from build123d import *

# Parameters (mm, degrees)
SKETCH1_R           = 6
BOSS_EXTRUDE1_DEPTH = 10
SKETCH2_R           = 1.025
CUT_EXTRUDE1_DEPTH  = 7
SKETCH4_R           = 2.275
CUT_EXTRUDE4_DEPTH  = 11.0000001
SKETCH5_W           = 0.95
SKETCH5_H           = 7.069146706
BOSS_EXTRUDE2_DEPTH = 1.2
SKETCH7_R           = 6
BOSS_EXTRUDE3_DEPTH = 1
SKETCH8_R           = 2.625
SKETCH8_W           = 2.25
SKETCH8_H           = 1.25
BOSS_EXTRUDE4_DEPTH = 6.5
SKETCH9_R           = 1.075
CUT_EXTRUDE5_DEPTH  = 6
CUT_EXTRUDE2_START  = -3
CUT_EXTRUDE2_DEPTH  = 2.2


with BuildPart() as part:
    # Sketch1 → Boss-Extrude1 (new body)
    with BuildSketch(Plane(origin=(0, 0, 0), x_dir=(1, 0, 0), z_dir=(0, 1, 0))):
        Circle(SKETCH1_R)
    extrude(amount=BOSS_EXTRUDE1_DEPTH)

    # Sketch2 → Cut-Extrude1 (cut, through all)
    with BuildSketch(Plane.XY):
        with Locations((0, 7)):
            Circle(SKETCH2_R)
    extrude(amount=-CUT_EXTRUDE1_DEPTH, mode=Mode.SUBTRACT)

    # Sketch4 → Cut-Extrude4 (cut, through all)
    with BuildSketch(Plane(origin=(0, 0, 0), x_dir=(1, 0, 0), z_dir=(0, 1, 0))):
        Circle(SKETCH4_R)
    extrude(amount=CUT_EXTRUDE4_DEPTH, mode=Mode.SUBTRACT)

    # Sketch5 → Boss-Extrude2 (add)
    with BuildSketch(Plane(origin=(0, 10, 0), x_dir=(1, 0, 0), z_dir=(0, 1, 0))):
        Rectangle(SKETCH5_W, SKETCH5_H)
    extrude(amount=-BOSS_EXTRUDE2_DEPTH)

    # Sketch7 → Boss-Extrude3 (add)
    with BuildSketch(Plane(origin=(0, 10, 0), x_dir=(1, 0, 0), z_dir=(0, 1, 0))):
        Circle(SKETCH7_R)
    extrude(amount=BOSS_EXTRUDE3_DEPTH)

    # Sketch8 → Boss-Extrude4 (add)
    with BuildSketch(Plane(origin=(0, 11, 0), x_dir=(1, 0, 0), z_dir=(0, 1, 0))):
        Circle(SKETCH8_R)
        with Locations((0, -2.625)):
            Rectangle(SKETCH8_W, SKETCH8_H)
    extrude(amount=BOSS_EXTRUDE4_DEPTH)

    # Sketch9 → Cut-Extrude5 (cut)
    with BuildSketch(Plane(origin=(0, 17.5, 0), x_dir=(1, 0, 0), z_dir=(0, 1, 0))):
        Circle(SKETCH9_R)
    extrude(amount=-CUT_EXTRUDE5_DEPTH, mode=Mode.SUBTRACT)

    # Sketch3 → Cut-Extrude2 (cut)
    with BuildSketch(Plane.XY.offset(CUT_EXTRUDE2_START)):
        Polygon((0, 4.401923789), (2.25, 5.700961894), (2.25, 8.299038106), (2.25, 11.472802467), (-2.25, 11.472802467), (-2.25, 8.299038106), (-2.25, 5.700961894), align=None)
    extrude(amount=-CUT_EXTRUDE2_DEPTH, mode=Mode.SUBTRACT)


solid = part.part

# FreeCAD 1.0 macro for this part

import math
import FreeCAD as App
import Part
import Sketcher

V = App.Vector
Q = App.Units.Quantity


def add_polygon(sketch, points):
    """Adds a closed chain of lines whose ends are joined by coincident constraints."""
    first, n = sketch.GeometryCount, len(points)
    for a, b in zip(points, points[1:] + points[:1]):
        sketch.addGeometry(Part.LineSegment(App.Vector(*a, 0), App.Vector(*b, 0)), False)
    for i in range(n):
        sketch.addConstraint(Sketcher.Constraint("Coincident", first + i, 2, first + (i + 1) % n, 1))

doc = App.newDocument("Part")
params = doc.addObject("Spreadsheet::Sheet", "Params")
for row, (alias, value) in enumerate([
    ("sketch1_diameter", "12 mm"),
    ("pad1_length", "10 mm"),
    ("sketch2_diameter", "2.05 mm"),
    ("sketch3_diameter", "4.55 mm"),
    ("sketch4_width", "0.95 mm"),
    ("pad2_length", "1.2 mm"),
    ("sketch5_diameter", "12 mm"),
    ("pad3_length", "1 mm"),
    ("sketch6_width", "2.25 mm"),
    ("pad4_length", "6.5 mm"),
    ("sketch7_diameter", "2.15 mm"),
    ("pocket3_length", "6 mm"),
    ("sketch8_width", "4.5 mm"),
    ("pocket4_length", "2.2 mm"),
], start=1):
    params.set(f"A{row}", alias)
    params.set(f"B{row}", "=" + value)
    params.setAlias(f"B{row}", alias)

body = doc.addObject("PartDesign::Body", "Body")

# Sketch on XZ plane
sketch1 = doc.addObject("Sketcher::SketchObject", "Sketch")
body.addObject(sketch1)
sketch1.AttachmentSupport = (doc.XZ_Plane, [""])
sketch1.MapMode = "FlatFace"
sketch1.addGeometry(Part.Circle(V(0, 0, 0), V(0, 0, 1), 6), False)
sketch1.addConstraint([
    Sketcher.Constraint("Coincident", 0, 3, -1, 1),
    Sketcher.Constraint("Diameter", 0, 12.0),
])
sketch1.setExpression("Constraints[1]", "Params.sketch1_diameter")
pad1 = doc.addObject("PartDesign::Pad", "Pad")
body.addObject(pad1)
pad1.Profile = sketch1
pad1.setExpression("Length", "Params.pad1_length")
pad1.Reversed = True

# Sketch on XY plane
sketch2 = doc.addObject("Sketcher::SketchObject", "Sketch001")
body.addObject(sketch2)
sketch2.AttachmentSupport = (doc.XY_Plane, [""])
sketch2.MapMode = "FlatFace"
sketch2.addGeometry(Part.Circle(V(0, 7, 0), V(0, 0, 1), 1), False)
sketch2.addConstraint([
    Sketcher.Constraint("PointOnObject", 0, 3, -2),
    Sketcher.Constraint("Diameter", 0, 2.05),
    Sketcher.Constraint("DistanceY", -1, 1, 0, 3, 7.0),
])
sketch2.setExpression("Constraints[1]", "Params.sketch2_diameter")
pocket1 = doc.addObject("PartDesign::Pocket", "Pocket")
body.addObject(pocket1)
pocket1.Profile = sketch2
pocket1.Type = "ThroughAll"

# Sketch on XZ plane
sketch3 = doc.addObject("Sketcher::SketchObject", "Sketch002")
body.addObject(sketch3)
sketch3.AttachmentSupport = (doc.XZ_Plane, [""])
sketch3.MapMode = "FlatFace"
sketch3.addGeometry(Part.Circle(V(0, 0, 0), V(0, 0, 1), 2.3), False)
sketch3.addConstraint([
    Sketcher.Constraint("Coincident", 0, 3, -1, 1),
    Sketcher.Constraint("Diameter", 0, 4.55),
])
sketch3.setExpression("Constraints[1]", "Params.sketch3_diameter")
pocket2 = doc.addObject("PartDesign::Pocket", "Pocket001")
body.addObject(pocket2)
pocket2.Profile = sketch3
pocket2.Type = "ThroughAll"

# Sketch on XZ plane
sketch4 = doc.addObject("Sketcher::SketchObject", "Sketch003")
body.addObject(sketch4)
sketch4.AttachmentSupport = (doc.XZ_Plane, [""])
sketch4.MapMode = "FlatFace"
sketch4.AttachmentOffset = App.Placement(V(0, 0, -10), App.Rotation())
add_polygon(sketch4, [(-0.5, -3.5), (-0.5, 3.5), (0.5, 3.5), (0.5, -3.5)])  # lines 0-3
sketch4.addConstraint([
    Sketcher.Constraint("Vertical", 0),
    Sketcher.Constraint("Horizontal", 1),
    Sketcher.Constraint("Vertical", 2),
    Sketcher.Constraint("Horizontal", 3),
    Sketcher.Constraint("Symmetric", 0, 2, 2, 2, -1, 1),
    Sketcher.Constraint("DistanceX", 1, 1, 1, 2, 0.95),
    Sketcher.Constraint("DistanceY", 0, 1, 0, 2, 7.069147),
])
sketch4.setExpression("Constraints[9]", "Params.sketch4_width")
pad2 = doc.addObject("PartDesign::Pad", "Pad001")
body.addObject(pad2)
pad2.Profile = sketch4
pad2.setExpression("Length", "Params.pad2_length")

# Sketch on XZ plane
sketch5 = doc.addObject("Sketcher::SketchObject", "Sketch004")
body.addObject(sketch5)
sketch5.AttachmentSupport = (doc.XZ_Plane, [""])
sketch5.MapMode = "FlatFace"
sketch5.AttachmentOffset = App.Placement(V(0, 0, -10), App.Rotation())
sketch5.addGeometry(Part.Circle(V(0, 0, 0), V(0, 0, 1), 6), False)
sketch5.addConstraint([
    Sketcher.Constraint("Coincident", 0, 3, -1, 1),
    Sketcher.Constraint("Diameter", 0, 12.0),
])
sketch5.setExpression("Constraints[1]", "Params.sketch5_diameter")
pad3 = doc.addObject("PartDesign::Pad", "Pad002")
body.addObject(pad3)
pad3.Profile = sketch5
pad3.setExpression("Length", "Params.pad3_length")
pad3.Reversed = True

# Sketch on XZ plane
sketch6 = doc.addObject("Sketcher::SketchObject", "Sketch005")
body.addObject(sketch6)
sketch6.AttachmentSupport = (doc.XZ_Plane, [""])
sketch6.MapMode = "FlatFace"
sketch6.AttachmentOffset = App.Placement(V(0, 0, -11), App.Rotation())
sketch6.addGeometry([
    Part.ArcOfCircle(Part.Circle(V(0, 0, 0), V(0, 0, 1), 2.6), math.radians(115), math.radians(425)),
    Part.LineSegment(V(-1.1, 2.4, 0), V(-1.1, 3.2, 0)),
    Part.LineSegment(V(-1.1, 3.2, 0), V(1.1, 3.2, 0)),
    Part.LineSegment(V(1.1, 3.2, 0), V(1.1, 2.4, 0)),
], False)
sketch6.addConstraint([
    Sketcher.Constraint("Coincident", 0, 1, 1, 1),
    Sketcher.Constraint("Coincident", 1, 2, 2, 1),
    Sketcher.Constraint("Coincident", 2, 2, 3, 1),
    Sketcher.Constraint("Coincident", 3, 2, 0, 2),
    Sketcher.Constraint("Vertical", 1),
    Sketcher.Constraint("Horizontal", 2),
    Sketcher.Constraint("Vertical", 3),
    Sketcher.Constraint("Coincident", 0, 3, -1, 1),
    Sketcher.Constraint("Horizontal", 0, 1, 3, 2),
    Sketcher.Constraint("Radius", 0, 2.625),
    Sketcher.Constraint("DistanceX", 2, 1, 2, 2, 2.25),
    Sketcher.Constraint("DistanceY", -1, 1, 1, 2, 3.25),
])
sketch6.setExpression("Constraints[10]", "Params.sketch6_width")
pad4 = doc.addObject("PartDesign::Pad", "Pad003")
body.addObject(pad4)
pad4.Profile = sketch6
pad4.setExpression("Length", "Params.pad4_length")
pad4.Reversed = True

# Sketch on XZ plane
sketch7 = doc.addObject("Sketcher::SketchObject", "Sketch006")
body.addObject(sketch7)
sketch7.AttachmentSupport = (doc.XZ_Plane, [""])
sketch7.MapMode = "FlatFace"
sketch7.AttachmentOffset = App.Placement(V(0, 0, -17.5), App.Rotation())
sketch7.addGeometry(Part.Circle(V(0, 0, 0), V(0, 0, 1), 1.1), False)
sketch7.addConstraint([
    Sketcher.Constraint("Coincident", 0, 3, -1, 1),
    Sketcher.Constraint("Diameter", 0, 2.15),
])
sketch7.setExpression("Constraints[1]", "Params.sketch7_diameter")
pocket3 = doc.addObject("PartDesign::Pocket", "Pocket002")
body.addObject(pocket3)
pocket3.Profile = sketch7
pocket3.setExpression("Length", "Params.pocket3_length")
pocket3.Reversed = True

# Sketch on XY plane
sketch8 = doc.addObject("Sketcher::SketchObject", "Sketch007")
body.addObject(sketch8)
sketch8.AttachmentSupport = (doc.XY_Plane, [""])
sketch8.MapMode = "FlatFace"
sketch8.AttachmentOffset = App.Placement(V(0, 0, -3), App.Rotation())
add_polygon(sketch8, [(0, 4.4), (2.2, 5.7), (2.2, 11.5), (-2.2, 11.5), (-2.2, 5.7)])  # lines 0-4
sketch8.addConstraint([
    Sketcher.Constraint("Vertical", 1),
    Sketcher.Constraint("Horizontal", 2),
    Sketcher.Constraint("Vertical", 3),
    Sketcher.Constraint("Symmetric", 0, 2, 3, 2, -2),
    Sketcher.Constraint("PointOnObject", 4, 2, -2),
    Sketcher.Constraint("Angle", 0, Q("30 deg")),
    Sketcher.Constraint("DistanceX", 2, 2, 2, 1, 4.5),
    Sketcher.Constraint("DistanceY", 1, 1, 1, 2, 5.771841),
    Sketcher.Constraint("DistanceY", -1, 1, 0, 2, 5.700962),
])
sketch8.setExpression("Constraints[11]", "Params.sketch8_width")
pocket4 = doc.addObject("PartDesign::Pocket", "Pocket003")
body.addObject(pocket4)
pocket4.Profile = sketch8
pocket4.setExpression("Length", "Params.pocket4_length")

doc.recompute()
